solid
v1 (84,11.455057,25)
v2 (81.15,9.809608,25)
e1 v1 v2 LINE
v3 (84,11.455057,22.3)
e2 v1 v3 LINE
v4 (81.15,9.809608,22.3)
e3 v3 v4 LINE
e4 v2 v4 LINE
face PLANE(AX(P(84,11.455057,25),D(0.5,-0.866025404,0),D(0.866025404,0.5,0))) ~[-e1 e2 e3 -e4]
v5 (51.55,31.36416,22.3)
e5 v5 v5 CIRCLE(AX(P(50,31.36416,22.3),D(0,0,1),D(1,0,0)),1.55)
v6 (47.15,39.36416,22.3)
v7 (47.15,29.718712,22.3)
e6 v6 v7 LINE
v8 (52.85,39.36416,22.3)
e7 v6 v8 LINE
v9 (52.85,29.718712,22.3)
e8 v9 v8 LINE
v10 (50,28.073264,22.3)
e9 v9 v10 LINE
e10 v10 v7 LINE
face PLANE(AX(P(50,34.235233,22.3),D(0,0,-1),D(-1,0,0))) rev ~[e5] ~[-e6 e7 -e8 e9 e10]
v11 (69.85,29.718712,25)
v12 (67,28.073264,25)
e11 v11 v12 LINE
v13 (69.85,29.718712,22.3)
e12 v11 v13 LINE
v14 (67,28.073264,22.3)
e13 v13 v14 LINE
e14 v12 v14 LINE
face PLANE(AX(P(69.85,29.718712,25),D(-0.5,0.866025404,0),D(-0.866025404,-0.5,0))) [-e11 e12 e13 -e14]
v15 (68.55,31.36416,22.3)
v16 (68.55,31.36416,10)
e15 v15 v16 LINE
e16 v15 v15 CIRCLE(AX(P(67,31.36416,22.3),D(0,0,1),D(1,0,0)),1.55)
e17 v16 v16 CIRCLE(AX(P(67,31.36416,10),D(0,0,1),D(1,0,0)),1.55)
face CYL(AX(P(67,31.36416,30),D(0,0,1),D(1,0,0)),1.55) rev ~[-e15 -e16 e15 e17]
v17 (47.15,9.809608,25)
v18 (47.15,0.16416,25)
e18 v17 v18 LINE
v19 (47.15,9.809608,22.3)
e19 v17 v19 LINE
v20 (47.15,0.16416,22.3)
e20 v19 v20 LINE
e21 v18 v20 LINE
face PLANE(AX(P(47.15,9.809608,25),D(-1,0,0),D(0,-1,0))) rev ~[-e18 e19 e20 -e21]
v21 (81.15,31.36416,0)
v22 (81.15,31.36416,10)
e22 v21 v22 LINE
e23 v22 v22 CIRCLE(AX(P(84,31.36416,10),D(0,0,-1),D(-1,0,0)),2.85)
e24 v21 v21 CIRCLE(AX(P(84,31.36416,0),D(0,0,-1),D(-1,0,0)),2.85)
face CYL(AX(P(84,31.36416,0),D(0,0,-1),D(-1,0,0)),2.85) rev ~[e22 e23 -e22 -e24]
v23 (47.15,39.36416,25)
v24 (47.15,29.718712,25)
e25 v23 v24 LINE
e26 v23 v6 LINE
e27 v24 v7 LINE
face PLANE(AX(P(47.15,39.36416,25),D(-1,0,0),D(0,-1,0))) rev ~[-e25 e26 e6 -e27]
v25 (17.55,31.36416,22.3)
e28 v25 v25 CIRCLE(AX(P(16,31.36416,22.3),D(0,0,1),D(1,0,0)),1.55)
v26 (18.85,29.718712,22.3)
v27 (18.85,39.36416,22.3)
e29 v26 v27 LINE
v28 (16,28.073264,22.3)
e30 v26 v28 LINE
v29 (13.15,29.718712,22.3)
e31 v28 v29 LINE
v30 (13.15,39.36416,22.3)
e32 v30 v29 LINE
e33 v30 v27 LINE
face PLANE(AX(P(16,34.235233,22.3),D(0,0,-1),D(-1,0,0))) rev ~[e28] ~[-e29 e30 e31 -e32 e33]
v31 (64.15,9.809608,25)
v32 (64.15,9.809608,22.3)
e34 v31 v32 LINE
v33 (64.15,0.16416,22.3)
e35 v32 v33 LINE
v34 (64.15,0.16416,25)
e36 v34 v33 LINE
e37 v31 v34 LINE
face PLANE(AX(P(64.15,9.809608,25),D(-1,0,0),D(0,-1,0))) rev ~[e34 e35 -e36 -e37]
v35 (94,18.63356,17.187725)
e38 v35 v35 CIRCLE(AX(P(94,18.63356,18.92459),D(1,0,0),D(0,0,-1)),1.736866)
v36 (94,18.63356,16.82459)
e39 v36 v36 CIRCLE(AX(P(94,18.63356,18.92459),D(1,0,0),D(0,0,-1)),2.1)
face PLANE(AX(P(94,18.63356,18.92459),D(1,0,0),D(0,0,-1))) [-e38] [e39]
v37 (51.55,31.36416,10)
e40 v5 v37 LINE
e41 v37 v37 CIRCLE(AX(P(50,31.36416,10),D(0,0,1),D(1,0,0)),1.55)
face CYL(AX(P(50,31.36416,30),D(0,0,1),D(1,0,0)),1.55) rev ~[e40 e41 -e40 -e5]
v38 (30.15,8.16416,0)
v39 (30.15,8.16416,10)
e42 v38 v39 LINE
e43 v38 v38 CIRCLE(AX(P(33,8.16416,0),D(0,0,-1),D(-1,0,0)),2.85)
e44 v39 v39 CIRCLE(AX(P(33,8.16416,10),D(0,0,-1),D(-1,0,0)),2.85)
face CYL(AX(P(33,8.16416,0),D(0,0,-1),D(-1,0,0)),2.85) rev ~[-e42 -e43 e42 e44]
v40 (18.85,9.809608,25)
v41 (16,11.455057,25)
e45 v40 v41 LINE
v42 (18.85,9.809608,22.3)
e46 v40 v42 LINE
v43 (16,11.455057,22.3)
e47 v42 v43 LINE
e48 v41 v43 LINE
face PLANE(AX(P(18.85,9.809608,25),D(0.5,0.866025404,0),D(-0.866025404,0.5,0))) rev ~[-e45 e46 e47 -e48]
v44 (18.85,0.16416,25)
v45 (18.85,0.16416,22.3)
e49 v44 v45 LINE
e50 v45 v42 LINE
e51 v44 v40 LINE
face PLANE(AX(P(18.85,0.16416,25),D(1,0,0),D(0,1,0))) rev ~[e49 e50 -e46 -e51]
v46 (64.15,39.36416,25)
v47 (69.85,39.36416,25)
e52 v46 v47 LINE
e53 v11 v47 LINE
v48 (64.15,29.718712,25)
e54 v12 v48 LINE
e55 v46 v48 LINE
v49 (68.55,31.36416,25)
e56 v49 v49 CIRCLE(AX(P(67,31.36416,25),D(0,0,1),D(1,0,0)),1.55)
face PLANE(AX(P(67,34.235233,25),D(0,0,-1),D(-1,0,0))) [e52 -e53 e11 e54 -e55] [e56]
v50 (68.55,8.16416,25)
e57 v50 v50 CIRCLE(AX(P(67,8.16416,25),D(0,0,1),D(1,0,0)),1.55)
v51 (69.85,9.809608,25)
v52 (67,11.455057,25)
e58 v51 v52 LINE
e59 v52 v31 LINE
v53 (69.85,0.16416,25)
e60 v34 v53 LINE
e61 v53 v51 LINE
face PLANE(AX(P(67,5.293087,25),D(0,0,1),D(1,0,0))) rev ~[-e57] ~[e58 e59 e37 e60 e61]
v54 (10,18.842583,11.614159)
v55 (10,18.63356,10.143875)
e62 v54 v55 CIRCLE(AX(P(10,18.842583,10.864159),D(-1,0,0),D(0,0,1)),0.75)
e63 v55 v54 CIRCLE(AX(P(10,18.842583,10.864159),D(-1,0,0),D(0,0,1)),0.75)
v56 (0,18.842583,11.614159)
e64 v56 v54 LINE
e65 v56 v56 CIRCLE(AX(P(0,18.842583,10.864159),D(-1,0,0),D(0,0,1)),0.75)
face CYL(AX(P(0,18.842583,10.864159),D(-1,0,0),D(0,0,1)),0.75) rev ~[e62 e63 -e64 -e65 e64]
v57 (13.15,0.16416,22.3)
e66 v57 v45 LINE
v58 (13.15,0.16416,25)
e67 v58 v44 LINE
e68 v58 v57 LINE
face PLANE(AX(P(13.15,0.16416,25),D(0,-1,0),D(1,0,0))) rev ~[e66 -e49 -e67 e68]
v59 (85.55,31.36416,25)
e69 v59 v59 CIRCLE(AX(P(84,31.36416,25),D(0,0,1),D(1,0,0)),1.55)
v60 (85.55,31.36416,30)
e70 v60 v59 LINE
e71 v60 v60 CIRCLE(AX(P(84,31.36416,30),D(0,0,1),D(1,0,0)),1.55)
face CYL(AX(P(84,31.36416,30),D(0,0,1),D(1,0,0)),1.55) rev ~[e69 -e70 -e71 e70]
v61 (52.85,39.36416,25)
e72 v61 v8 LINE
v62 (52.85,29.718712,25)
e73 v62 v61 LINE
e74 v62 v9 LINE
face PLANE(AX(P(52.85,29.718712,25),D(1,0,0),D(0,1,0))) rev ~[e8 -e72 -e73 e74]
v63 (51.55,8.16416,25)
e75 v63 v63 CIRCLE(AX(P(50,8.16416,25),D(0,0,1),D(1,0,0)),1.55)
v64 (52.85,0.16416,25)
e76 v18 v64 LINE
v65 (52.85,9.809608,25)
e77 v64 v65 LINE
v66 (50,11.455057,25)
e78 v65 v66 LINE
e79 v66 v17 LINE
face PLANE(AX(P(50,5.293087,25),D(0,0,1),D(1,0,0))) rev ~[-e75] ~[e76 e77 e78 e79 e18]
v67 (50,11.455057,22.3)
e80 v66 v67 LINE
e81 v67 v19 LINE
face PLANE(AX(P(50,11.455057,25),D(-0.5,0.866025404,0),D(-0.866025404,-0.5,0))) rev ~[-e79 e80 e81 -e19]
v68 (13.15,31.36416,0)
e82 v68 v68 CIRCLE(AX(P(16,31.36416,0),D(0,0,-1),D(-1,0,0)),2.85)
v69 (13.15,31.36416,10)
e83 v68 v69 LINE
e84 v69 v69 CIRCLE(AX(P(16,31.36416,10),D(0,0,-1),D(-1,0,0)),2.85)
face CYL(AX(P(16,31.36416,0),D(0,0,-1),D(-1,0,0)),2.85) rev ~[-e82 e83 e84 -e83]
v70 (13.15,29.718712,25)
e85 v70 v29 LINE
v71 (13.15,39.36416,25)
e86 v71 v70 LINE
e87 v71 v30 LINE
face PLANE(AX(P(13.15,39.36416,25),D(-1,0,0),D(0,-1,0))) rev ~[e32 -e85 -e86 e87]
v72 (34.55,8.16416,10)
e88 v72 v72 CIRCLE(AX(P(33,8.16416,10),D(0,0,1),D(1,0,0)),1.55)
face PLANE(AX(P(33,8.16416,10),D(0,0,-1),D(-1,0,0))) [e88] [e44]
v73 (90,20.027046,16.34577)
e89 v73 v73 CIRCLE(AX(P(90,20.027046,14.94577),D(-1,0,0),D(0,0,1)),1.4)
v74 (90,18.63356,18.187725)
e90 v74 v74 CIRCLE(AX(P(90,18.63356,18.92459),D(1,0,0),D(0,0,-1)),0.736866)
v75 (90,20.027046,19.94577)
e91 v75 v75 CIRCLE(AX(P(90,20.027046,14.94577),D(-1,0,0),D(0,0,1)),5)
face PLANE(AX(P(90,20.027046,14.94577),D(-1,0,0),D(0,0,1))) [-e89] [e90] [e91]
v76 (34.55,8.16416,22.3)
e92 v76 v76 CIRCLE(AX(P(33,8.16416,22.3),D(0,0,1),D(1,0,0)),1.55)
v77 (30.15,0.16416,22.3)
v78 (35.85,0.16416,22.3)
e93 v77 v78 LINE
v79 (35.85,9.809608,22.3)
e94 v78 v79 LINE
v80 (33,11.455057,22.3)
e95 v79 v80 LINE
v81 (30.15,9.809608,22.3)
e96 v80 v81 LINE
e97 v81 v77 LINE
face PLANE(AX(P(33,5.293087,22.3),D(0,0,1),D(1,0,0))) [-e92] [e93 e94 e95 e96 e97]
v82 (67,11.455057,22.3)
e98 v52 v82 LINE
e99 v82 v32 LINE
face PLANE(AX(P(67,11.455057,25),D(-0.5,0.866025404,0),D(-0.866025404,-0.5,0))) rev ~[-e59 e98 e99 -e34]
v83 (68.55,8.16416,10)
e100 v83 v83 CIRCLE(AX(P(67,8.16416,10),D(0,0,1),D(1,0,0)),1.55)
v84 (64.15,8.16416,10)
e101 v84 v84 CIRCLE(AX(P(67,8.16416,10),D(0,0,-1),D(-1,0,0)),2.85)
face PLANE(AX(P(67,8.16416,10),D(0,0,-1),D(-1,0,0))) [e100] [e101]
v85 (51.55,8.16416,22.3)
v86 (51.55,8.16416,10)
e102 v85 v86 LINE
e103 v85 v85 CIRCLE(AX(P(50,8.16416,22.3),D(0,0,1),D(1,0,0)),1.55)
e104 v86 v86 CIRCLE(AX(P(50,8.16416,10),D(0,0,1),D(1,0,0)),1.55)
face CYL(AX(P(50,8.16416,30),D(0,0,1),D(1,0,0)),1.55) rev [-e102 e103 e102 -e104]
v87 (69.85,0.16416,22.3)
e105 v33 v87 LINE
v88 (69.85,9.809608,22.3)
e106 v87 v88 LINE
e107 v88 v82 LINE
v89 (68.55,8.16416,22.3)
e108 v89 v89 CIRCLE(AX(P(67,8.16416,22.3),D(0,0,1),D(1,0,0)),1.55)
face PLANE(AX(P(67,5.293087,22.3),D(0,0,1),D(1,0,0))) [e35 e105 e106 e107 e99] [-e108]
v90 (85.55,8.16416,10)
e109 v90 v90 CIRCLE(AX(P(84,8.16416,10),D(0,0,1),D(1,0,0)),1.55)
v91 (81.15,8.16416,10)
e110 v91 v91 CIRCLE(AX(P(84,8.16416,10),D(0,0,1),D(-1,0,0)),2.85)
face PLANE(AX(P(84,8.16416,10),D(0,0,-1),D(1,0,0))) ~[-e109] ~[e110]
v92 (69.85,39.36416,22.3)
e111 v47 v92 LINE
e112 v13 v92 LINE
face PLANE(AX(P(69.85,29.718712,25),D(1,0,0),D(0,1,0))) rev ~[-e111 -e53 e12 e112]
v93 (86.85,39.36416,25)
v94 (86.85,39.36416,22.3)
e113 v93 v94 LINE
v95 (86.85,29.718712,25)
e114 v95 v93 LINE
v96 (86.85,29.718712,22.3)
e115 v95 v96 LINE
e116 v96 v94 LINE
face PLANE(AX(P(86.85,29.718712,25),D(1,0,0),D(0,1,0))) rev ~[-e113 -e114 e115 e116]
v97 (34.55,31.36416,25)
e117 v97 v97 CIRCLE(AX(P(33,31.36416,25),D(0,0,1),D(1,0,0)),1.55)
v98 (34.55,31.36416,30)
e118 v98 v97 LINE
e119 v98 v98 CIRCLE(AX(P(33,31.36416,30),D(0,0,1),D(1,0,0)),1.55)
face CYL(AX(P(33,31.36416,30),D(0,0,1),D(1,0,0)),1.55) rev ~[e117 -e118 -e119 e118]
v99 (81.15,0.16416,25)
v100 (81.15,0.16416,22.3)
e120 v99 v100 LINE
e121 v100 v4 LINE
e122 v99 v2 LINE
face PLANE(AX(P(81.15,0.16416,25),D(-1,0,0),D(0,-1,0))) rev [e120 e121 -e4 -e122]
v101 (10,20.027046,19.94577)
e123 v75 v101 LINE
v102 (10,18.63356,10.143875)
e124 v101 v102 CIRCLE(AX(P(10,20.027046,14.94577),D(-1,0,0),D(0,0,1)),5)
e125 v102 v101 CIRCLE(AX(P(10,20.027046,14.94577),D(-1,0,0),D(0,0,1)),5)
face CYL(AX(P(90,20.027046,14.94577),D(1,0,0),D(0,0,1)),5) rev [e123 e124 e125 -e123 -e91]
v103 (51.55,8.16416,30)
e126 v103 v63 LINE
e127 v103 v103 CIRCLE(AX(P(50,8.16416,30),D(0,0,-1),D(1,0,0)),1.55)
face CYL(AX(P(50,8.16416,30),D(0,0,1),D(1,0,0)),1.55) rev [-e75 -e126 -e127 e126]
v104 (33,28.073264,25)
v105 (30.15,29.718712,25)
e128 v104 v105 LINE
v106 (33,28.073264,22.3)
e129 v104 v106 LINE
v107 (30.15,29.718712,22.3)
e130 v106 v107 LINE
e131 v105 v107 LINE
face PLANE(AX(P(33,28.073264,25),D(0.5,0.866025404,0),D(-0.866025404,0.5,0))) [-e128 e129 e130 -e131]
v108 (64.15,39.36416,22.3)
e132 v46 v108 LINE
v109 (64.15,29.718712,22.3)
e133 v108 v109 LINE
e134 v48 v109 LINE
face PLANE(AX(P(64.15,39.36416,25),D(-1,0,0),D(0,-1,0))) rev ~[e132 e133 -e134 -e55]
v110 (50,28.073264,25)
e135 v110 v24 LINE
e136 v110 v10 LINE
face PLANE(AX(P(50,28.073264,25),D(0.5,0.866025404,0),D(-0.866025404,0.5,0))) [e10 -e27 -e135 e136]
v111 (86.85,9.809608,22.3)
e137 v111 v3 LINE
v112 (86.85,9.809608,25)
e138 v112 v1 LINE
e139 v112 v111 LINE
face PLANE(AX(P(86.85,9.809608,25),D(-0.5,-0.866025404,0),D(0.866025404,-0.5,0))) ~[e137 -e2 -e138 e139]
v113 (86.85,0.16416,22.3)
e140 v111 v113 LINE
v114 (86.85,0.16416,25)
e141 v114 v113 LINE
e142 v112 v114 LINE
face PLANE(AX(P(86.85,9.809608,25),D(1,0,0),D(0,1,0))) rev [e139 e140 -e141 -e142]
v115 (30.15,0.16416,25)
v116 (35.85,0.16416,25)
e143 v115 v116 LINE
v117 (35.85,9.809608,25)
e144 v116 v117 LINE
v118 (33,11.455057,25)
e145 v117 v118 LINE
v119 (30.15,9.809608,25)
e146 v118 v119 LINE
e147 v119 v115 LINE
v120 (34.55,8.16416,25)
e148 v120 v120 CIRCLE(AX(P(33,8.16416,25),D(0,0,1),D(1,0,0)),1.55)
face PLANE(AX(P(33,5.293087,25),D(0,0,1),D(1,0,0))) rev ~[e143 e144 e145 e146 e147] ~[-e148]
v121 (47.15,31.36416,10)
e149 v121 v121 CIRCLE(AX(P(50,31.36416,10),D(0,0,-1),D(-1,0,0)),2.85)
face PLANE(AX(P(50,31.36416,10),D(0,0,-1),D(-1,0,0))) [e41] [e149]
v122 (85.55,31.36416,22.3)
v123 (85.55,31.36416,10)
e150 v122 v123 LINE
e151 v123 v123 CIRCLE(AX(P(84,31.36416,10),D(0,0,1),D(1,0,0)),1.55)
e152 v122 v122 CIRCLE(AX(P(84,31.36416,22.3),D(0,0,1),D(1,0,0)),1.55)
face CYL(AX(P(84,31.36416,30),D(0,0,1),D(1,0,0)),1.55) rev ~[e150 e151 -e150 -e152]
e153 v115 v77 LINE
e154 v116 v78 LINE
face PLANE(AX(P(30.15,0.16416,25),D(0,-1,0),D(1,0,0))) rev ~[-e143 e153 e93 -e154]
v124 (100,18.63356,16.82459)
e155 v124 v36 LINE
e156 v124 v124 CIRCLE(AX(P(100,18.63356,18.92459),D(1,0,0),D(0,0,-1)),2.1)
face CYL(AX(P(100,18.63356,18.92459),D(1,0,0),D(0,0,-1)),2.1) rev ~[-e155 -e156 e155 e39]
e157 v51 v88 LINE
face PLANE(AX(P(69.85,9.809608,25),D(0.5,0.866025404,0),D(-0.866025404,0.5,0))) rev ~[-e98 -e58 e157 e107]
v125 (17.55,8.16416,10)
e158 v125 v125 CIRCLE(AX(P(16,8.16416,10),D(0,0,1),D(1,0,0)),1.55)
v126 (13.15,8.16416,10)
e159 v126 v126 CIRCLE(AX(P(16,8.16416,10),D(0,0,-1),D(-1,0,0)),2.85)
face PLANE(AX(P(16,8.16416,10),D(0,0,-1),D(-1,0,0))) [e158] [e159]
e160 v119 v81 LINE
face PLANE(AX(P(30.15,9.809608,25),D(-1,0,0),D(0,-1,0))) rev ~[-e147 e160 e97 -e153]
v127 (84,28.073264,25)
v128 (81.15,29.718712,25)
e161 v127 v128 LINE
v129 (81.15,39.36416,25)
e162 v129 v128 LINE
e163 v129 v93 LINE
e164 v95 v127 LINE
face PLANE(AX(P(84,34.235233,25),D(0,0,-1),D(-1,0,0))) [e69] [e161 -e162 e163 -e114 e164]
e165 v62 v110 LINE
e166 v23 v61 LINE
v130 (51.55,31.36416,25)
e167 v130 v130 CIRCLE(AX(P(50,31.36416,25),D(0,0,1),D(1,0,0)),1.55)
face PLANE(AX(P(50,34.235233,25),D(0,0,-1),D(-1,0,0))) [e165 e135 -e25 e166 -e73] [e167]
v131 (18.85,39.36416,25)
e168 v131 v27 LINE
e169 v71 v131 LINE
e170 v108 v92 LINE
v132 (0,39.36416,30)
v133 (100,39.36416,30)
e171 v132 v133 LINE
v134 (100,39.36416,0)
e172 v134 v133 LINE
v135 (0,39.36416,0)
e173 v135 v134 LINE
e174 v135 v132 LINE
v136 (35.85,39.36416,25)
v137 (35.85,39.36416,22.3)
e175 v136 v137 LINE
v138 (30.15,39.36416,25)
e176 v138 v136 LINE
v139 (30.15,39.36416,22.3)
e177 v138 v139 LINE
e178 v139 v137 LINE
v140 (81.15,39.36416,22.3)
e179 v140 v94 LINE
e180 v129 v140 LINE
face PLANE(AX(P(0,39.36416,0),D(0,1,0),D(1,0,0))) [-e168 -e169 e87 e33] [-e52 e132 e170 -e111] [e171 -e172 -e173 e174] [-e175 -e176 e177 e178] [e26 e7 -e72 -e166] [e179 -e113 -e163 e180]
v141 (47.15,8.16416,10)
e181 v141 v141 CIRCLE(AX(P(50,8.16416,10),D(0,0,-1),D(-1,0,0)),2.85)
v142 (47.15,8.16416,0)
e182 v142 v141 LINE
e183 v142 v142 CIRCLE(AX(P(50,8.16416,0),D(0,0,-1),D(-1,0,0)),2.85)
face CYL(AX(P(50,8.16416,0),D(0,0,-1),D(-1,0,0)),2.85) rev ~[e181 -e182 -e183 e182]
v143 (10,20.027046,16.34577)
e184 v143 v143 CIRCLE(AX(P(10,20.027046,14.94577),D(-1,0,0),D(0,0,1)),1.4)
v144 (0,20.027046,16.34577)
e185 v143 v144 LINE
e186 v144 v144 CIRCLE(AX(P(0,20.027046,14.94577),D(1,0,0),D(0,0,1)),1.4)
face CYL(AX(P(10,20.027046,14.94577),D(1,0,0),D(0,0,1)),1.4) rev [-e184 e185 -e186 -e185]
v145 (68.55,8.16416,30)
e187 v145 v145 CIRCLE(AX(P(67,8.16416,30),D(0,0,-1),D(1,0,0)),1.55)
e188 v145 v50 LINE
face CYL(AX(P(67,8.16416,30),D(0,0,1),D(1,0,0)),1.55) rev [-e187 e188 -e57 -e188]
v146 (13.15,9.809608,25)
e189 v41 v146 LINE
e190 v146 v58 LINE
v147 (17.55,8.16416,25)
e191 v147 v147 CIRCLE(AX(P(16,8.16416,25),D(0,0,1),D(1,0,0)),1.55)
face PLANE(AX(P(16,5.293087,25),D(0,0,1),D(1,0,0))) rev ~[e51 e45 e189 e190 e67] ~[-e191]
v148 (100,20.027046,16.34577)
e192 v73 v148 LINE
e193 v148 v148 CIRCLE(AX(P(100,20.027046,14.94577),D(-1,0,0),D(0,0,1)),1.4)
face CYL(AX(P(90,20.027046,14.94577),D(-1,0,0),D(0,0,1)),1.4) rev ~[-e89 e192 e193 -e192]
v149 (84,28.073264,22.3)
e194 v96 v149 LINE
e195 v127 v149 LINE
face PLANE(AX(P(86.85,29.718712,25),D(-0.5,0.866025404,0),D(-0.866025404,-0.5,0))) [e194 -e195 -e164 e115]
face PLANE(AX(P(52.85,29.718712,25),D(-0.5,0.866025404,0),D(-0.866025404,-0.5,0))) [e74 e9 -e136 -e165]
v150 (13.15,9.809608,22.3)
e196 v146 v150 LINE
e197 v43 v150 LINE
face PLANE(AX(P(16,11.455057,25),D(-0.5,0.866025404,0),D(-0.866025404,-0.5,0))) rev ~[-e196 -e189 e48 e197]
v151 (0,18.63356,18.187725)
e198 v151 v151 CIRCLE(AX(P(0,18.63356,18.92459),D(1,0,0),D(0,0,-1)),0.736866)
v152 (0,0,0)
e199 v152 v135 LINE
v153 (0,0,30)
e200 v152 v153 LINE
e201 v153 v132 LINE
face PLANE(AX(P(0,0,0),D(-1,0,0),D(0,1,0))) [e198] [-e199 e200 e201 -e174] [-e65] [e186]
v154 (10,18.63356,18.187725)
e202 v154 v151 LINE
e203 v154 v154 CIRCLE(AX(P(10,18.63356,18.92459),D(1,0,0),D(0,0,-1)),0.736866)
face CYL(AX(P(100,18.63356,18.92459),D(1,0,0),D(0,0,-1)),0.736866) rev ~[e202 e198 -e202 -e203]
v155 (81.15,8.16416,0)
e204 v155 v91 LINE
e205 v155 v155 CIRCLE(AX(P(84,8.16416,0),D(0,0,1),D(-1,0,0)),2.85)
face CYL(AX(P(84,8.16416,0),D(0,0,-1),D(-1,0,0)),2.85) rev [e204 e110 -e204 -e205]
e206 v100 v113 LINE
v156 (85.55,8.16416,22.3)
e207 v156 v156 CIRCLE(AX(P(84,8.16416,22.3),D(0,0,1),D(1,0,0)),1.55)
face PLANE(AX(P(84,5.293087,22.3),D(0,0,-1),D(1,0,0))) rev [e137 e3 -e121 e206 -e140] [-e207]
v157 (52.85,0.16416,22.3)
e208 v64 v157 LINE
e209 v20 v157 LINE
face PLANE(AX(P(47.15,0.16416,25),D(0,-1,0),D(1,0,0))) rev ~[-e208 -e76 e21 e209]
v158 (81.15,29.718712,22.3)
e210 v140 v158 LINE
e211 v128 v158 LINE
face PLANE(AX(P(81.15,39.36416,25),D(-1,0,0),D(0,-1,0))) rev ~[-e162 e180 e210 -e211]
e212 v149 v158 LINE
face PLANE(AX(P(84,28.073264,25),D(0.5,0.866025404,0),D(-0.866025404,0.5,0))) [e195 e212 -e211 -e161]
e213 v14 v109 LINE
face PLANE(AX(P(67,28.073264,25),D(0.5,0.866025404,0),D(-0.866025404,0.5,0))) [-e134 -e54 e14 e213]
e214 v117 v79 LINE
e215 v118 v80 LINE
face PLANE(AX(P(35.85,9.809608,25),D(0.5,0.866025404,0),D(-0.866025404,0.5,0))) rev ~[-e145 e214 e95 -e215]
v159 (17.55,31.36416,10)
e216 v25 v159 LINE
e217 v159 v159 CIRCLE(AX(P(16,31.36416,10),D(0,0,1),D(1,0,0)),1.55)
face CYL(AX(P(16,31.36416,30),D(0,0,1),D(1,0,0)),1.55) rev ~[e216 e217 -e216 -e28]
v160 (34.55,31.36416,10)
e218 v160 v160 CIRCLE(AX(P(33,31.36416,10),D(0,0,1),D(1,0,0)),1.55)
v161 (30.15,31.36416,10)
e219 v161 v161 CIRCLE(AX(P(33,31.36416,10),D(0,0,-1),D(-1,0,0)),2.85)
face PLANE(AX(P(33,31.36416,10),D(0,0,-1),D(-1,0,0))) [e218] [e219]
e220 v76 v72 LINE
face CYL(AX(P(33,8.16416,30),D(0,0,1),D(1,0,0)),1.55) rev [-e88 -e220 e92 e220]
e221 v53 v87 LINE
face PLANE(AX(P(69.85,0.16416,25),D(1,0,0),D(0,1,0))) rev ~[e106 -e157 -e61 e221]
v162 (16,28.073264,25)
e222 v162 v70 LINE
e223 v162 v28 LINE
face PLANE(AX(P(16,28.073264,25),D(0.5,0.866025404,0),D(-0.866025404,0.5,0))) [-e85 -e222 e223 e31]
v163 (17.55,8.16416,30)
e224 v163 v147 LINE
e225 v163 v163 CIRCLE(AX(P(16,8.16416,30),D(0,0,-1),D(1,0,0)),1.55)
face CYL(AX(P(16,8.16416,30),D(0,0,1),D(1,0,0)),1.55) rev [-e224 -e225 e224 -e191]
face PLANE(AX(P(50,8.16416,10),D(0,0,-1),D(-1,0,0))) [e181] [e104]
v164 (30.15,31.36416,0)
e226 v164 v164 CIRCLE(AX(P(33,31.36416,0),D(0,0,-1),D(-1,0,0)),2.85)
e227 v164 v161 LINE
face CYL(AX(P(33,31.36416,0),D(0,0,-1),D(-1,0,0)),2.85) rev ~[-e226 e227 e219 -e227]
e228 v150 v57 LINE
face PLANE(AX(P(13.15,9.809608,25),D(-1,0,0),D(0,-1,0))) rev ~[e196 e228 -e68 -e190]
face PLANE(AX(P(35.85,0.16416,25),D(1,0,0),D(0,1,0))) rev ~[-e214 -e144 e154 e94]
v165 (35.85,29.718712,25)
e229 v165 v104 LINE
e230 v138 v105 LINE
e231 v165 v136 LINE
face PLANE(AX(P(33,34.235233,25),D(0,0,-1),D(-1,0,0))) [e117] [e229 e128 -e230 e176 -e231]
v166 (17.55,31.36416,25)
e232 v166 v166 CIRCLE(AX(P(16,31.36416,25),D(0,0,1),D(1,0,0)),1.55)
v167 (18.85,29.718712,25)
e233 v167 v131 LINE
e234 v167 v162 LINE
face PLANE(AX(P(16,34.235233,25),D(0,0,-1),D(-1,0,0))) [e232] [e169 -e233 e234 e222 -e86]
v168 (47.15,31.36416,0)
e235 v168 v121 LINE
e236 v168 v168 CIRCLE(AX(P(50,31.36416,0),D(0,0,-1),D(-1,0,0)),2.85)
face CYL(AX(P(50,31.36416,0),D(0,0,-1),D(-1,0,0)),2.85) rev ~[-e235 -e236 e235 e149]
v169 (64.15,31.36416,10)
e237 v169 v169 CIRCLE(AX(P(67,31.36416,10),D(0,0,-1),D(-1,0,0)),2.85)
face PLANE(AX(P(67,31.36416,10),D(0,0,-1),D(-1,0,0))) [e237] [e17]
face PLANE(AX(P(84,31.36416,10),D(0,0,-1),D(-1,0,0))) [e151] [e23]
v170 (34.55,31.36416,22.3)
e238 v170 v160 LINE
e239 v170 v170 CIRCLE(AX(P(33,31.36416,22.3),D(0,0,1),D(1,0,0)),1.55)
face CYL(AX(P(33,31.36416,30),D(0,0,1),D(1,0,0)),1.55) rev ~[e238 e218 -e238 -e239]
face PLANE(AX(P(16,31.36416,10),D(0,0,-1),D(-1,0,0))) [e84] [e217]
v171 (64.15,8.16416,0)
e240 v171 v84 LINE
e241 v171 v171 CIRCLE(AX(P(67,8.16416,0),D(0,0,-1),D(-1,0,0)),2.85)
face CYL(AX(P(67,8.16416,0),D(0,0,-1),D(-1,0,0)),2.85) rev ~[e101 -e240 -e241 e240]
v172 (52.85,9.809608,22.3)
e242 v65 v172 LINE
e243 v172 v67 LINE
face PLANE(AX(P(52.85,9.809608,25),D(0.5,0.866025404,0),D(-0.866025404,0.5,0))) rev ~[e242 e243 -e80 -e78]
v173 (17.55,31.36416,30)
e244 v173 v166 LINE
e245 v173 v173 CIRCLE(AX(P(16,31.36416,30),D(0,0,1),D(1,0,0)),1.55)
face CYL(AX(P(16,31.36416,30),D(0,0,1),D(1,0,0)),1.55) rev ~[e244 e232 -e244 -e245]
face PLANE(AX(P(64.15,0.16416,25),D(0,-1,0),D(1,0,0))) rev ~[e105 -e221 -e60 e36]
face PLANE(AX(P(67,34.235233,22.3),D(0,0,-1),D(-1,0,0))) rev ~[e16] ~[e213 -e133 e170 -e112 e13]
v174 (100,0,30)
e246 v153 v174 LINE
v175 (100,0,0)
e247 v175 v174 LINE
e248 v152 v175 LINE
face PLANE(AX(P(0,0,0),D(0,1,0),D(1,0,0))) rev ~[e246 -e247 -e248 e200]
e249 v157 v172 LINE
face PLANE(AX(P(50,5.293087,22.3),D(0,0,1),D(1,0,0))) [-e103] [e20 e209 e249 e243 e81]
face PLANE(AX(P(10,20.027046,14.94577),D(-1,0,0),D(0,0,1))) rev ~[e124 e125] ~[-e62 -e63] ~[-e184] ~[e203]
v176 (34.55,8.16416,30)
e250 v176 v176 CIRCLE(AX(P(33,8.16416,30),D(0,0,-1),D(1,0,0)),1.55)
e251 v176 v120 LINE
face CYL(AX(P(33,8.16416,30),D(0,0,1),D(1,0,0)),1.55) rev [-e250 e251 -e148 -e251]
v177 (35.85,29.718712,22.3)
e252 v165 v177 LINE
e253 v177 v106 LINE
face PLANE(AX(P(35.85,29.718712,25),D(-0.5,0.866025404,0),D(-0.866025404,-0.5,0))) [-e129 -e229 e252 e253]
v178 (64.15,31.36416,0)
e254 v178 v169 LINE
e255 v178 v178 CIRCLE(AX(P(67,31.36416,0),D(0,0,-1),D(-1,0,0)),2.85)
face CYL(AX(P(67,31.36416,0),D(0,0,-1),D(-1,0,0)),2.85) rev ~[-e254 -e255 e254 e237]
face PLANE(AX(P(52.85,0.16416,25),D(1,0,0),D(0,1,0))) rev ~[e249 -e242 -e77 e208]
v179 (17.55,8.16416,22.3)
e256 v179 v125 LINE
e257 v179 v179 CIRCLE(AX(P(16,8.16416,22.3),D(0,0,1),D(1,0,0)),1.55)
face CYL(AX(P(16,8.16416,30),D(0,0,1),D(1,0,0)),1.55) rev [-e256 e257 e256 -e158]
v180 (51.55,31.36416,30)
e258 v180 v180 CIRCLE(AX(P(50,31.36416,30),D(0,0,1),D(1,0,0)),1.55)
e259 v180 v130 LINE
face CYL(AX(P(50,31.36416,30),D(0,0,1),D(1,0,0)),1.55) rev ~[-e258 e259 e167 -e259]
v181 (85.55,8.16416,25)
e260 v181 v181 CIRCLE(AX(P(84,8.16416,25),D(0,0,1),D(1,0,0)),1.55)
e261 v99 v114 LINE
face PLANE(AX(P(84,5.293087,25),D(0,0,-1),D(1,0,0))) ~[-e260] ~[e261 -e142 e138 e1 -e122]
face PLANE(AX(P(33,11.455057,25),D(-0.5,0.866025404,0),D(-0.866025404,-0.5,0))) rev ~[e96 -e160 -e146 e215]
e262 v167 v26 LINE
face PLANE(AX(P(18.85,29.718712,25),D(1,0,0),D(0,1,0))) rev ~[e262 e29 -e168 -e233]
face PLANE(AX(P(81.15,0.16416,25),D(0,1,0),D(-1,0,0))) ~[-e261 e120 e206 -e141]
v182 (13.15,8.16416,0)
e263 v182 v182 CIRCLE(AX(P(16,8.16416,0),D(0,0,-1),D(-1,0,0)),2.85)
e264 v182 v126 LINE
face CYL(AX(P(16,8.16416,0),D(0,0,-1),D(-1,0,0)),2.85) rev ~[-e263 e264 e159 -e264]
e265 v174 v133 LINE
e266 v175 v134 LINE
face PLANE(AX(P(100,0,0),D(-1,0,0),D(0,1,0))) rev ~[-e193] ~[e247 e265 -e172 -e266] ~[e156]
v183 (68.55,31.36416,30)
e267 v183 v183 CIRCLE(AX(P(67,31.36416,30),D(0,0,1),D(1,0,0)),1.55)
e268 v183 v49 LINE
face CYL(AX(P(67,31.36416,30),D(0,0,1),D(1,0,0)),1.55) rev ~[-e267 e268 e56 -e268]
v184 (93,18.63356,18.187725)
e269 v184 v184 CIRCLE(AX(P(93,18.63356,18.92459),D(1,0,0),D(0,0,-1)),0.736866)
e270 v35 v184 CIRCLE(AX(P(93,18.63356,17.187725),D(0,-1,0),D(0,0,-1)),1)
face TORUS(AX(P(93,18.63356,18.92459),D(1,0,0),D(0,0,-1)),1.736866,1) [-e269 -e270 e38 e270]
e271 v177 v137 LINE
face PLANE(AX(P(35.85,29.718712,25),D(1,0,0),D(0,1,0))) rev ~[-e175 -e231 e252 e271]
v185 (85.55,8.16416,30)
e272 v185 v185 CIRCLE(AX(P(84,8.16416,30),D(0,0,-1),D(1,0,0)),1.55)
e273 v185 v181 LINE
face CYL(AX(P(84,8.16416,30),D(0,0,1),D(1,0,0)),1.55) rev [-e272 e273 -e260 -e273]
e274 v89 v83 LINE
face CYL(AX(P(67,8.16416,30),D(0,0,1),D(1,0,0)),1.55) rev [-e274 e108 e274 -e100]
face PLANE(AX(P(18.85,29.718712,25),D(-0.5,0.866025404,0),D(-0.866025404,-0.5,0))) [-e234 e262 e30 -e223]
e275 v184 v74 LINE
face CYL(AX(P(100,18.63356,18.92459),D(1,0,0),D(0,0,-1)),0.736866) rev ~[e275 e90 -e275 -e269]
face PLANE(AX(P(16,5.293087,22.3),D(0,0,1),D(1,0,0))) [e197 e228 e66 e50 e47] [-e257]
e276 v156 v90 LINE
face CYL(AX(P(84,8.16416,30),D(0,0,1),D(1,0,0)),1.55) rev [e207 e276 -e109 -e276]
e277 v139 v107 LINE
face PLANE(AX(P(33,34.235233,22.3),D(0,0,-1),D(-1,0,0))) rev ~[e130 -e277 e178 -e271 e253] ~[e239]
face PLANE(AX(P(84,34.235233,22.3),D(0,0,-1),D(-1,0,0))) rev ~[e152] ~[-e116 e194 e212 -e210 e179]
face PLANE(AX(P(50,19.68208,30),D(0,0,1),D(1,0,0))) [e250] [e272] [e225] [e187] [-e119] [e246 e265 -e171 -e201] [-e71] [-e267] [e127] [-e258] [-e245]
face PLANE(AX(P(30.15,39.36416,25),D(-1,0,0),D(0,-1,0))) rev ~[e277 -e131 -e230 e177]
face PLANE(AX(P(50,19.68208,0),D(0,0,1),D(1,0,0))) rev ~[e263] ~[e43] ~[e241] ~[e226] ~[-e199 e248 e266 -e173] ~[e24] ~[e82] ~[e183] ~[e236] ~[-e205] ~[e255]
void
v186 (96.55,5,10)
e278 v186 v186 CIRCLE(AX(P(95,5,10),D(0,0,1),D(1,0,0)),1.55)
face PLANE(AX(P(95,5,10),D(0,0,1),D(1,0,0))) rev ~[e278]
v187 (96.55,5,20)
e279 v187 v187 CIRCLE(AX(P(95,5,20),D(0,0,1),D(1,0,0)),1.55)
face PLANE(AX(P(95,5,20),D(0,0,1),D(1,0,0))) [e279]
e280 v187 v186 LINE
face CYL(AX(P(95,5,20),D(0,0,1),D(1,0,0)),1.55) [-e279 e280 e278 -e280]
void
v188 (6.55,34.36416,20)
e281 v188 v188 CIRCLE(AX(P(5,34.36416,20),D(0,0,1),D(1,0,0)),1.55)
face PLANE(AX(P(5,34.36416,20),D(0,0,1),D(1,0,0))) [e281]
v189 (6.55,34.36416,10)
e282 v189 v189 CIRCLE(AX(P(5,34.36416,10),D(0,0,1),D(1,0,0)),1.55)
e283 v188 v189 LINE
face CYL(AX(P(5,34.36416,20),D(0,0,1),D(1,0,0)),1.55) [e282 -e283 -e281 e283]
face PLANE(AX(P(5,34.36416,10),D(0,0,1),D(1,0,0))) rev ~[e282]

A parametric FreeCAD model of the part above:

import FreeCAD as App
import Part
import Sketcher

V = App.Vector
Q = App.Units.Quantity


def edges_at(feature, points):
    """Names of the edges that pass closest to the given points."""
    edges = feature.Shape.Edges
    near = lambda p: min(range(len(edges)), key=lambda i: edges[i].distToShape(Part.Vertex(*p))[0])
    return sorted({f"Edge{near(p) + 1}" for p in points})

doc = App.newDocument("Part")
body = doc.addObject("PartDesign::Body", "Body")

# Sketch on XY plane
sketch1 = body.newObject("Sketcher::SketchObject", "Sketch")
sketch1.AttachmentSupport = (doc.getObject("XY_Plane"), [""])
sketch1.MapMode = "FlatFace"
sketch1.addGeometry([
    Part.LineSegment(V(0, 39, 0), V(0, 0, 0)),
    Part.LineSegment(V(0, 0, 0), V(100, 0, 0)),
    Part.LineSegment(V(100, 0, 0), V(100, 39, 0)),
    Part.LineSegment(V(100, 39, 0), V(0, 39, 0)),
], False)
sketch1.addConstraint([
    Sketcher.Constraint("Coincident", 0, 2, 1, 1),
    Sketcher.Constraint("Coincident", 1, 2, 2, 1),
    Sketcher.Constraint("Coincident", 2, 2, 3, 1),
    Sketcher.Constraint("Coincident", 3, 2, 0, 1),
    Sketcher.Constraint("Vertical", 0),
    Sketcher.Constraint("Horizontal", 1),
    Sketcher.Constraint("Vertical", 2),
    Sketcher.Constraint("Horizontal", 3),
    Sketcher.Constraint("Coincident", 0, 2, -1, 1),
    Sketcher.Constraint("DistanceX", 1, 1, 1, 2, Q("100 mm")),
    Sketcher.Constraint("DistanceY", 0, 2, 0, 1, Q("39.36416 mm")),
])
pad1 = body.newObject("PartDesign::Pad", "Pad")
pad1.Profile = sketch1
pad1.Length = 30

# Sketch on YZ plane
sketch2 = body.newObject("Sketcher::SketchObject", "Sketch001")
sketch2.AttachmentSupport = (doc.getObject("YZ_Plane"), [""])
sketch2.MapMode = "FlatFace"
sketch2.AttachmentOffset = App.Placement(V(0, 0, 50), App.Rotation())
sketch2.addGeometry(Part.Circle(V(20, 15, 0), V(0, 0, 1), 5), False)
sketch2.addConstraint([
    Sketcher.Constraint("Diameter", 0, Q("10 mm")),
    Sketcher.Constraint("DistanceY", -1, 1, 0, 3, Q("14.94577 mm")),
    Sketcher.Constraint("DistanceX", -1, 1, 0, 3, Q("20.027046 mm")),
])
pocket1 = body.newObject("PartDesign::Pocket", "Pocket")
pocket1.Profile = sketch2
pocket1.Type = "TwoLengths"
pocket1.Length = 40
pocket1.Length2 = 40

# Sketch on YZ plane
sketch3 = body.newObject("Sketcher::SketchObject", "Sketch002")
sketch3.AttachmentSupport = (doc.getObject("YZ_Plane"), [""])
sketch3.MapMode = "FlatFace"
sketch3.AttachmentOffset = App.Placement(V(0, 0, 90), App.Rotation())
sketch3.addGeometry(Part.Circle(V(20, 14.9, 0), V(0, 0, 1), 1.4), False)
sketch3.addConstraint([
    Sketcher.Constraint("Diameter", 0, Q("2.8 mm")),
    Sketcher.Constraint("DistanceY", -1, 1, 0, 3, Q("14.94577 mm")),
    Sketcher.Constraint("DistanceX", -1, 1, 0, 3, Q("20.027046 mm")),
])
pocket2 = body.newObject("PartDesign::Pocket", "Pocket001")
pocket2.Profile = sketch3
pocket2.Type = "ThroughAll"
pocket2.Reversed = True
doc.recompute()

datumplane = body.newObject("PartDesign::Plane", "DatumPlane")
datumplane.AttachmentSupport = (doc.getObject("YZ_Plane"), [""])
datumplane.MapMode = "FlatFace"
datumplane.AttachmentOffset = App.Placement(V(0, 0, 50), App.Rotation())
mirrored = body.newObject("PartDesign::Mirrored", "Mirrored")
mirrored.Originals = [pocket2]
mirrored.MirrorPlane = (datumplane, [""])
body.Tip = mirrored

# Sketch on XY plane
sketch4 = body.newObject("Sketcher::SketchObject", "Sketch003")
sketch4.AttachmentSupport = (doc.getObject("XY_Plane"), [""])
sketch4.MapMode = "FlatFace"
sketch4.AttachmentOffset = App.Placement(V(0, 0, 30), App.Rotation())
sketch4.addGeometry([
    Part.Circle(V(16, 31.4, 0), V(0, 0, 1), 1.6),  # 0
    Part.Circle(V(33, 31.4, 0), V(0, 0, 1), 1.6),  # 1
    Part.Circle(V(50, 31.4, 0), V(0, 0, 1), 1.6),  # 2
    Part.Circle(V(67, 31.4, 0), V(0, 0, 1), 1.6),  # 3
    Part.Circle(V(84, 31.4, 0), V(0, 0, 1), 1.6),  # 4
], False)
sketch4.addConstraint([
    Sketcher.Constraint("Equal", 0, 1),
    Sketcher.Constraint("Equal", 1, 2),
    Sketcher.Constraint("Equal", 2, 3),
    Sketcher.Constraint("Equal", 3, 4),
    Sketcher.Constraint("Horizontal", 0, 3, 1, 3),
    Sketcher.Constraint("Horizontal", 1, 3, 2, 3),
    Sketcher.Constraint("Horizontal", 2, 3, 3, 3),
    Sketcher.Constraint("Horizontal", 3, 3, 4, 3),
    Sketcher.Constraint("Diameter", 0, Q("3.1 mm")),
    Sketcher.Constraint("DistanceX", -1, 1, 0, 3, Q("16 mm")),
    Sketcher.Constraint("DistanceX", -1, 1, 1, 3, Q("33 mm")),
    Sketcher.Constraint("DistanceX", -1, 1, 2, 3, Q("50 mm")),
    Sketcher.Constraint("DistanceX", -1, 1, 3, 3, Q("67 mm")),
    Sketcher.Constraint("DistanceX", -1, 1, 4, 3, Q("84 mm")),
    Sketcher.Constraint("DistanceY", -1, 1, 0, 3, Q("31.36416 mm")),
])
pocket3 = body.newObject("PartDesign::Pocket", "Pocket002")
pocket3.Profile = sketch4
pocket3.Type = "ThroughAll"

# Sketch on YZ plane
sketch5 = body.newObject("Sketcher::SketchObject", "Sketch004")
sketch5.AttachmentSupport = (doc.getObject("YZ_Plane"), [""])
sketch5.MapMode = "FlatFace"
sketch5.AttachmentOffset = App.Placement(V(0, 0, 100), App.Rotation())
sketch5.addGeometry(Part.Circle(V(18.6, 18.9, 0), V(0, 0, 1), 0.7), False)
sketch5.addConstraint([
    Sketcher.Constraint("Diameter", 0, Q("1.473731 mm")),
    Sketcher.Constraint("DistanceX", -1, 1, 0, 3, Q("18.63356 mm")),
    Sketcher.Constraint("DistanceY", -1, 1, 0, 3, Q("18.92459 mm")),
])
pocket4 = body.newObject("PartDesign::Pocket", "Pocket003")
pocket4.Profile = sketch5
pocket4.Type = "ThroughAll"

# Sketch on YZ plane
sketch6 = body.newObject("Sketcher::SketchObject", "Sketch005")
sketch6.AttachmentSupport = (doc.getObject("YZ_Plane"), [""])
sketch6.MapMode = "FlatFace"
sketch6.AttachmentOffset = App.Placement(V(0, 0, 100), App.Rotation())
sketch6.addGeometry(Part.Circle(V(18.6, 18.9, 0), V(0, 0, 1), 2.1), False)
sketch6.addConstraint([
    Sketcher.Constraint("Diameter", 0, Q("4.2 mm")),
    Sketcher.Constraint("DistanceX", -1, 1, 0, 3, Q("18.63356 mm")),
    Sketcher.Constraint("DistanceY", -1, 1, 0, 3, Q("18.92459 mm")),
])
pocket5 = body.newObject("PartDesign::Pocket", "Pocket004")
pocket5.Profile = sketch6
pocket5.Length = 6

# Sketch on YZ plane
sketch7 = body.newObject("Sketcher::SketchObject", "Sketch006")
sketch7.AttachmentSupport = (doc.getObject("YZ_Plane"), [""])
sketch7.MapMode = "FlatFace"
sketch7.addGeometry(Part.Circle(V(18.8, 10.9, 0), V(0, 0, 1), 0.8), False)
sketch7.addConstraint([
    Sketcher.Constraint("Diameter", 0, Q("1.5 mm")),
    Sketcher.Constraint("DistanceY", -1, 1, 0, 3, Q("10.864159 mm")),
    Sketcher.Constraint("DistanceX", -1, 1, 0, 3, Q("18.842583 mm")),
])
pocket6 = body.newObject("PartDesign::Pocket", "Pocket005")
pocket6.Profile = sketch7
pocket6.Length = 10
pocket6.Reversed = True
doc.recompute()

fillet = body.newObject("PartDesign::Fillet", "Fillet")
fillet.Base = (pocket6, edges_at(pocket6, [(94, 18.634, 19.661)]))
fillet.Radius = 1

# Sketch on XY plane
sketch8 = body.newObject("Sketcher::SketchObject", "Sketch007")
sketch8.AttachmentSupport = (doc.getObject("XY_Plane"), [""])
sketch8.MapMode = "FlatFace"
sketch8.addGeometry(Part.Circle(V(84, 31.4, 0), V(0, 0, 1), 2.9), False)
sketch8.addConstraint([
    Sketcher.Constraint("Diameter", 0, Q("5.7 mm")),
    Sketcher.Constraint("DistanceX", -1, 1, 0, 3, Q("84 mm")),
    Sketcher.Constraint("DistanceY", -1, 1, 0, 3, Q("31.36416 mm")),
])
pocket7 = body.newObject("PartDesign::Pocket", "Pocket006")
pocket7.Profile = sketch8
pocket7.Length = 10
pocket7.Reversed = True

# Sketch on XY plane
sketch9 = body.newObject("Sketcher::SketchObject", "Sketch008")
sketch9.AttachmentSupport = (doc.getObject("XY_Plane"), [""])
sketch9.MapMode = "FlatFace"
sketch9.AttachmentOffset = App.Placement(V(0, 0, 25), App.Rotation())
sketch9.addGeometry([
    Part.LineSegment(V(81.2, 39.4, 0), V(81.2, 29.7, 0)),  # 0
    Part.LineSegment(V(81.2, 29.7, 0), V(84, 28.1, 0)),  # 1
    Part.LineSegment(V(84, 28.1, 0), V(86.8, 29.7, 0)),  # 2
    Part.LineSegment(V(86.8, 29.7, 0), V(86.8, 39.4, 0)),  # 3
    Part.LineSegment(V(86.8, 39.4, 0), V(81.2, 39.4, 0)),  # 4
], False)
sketch9.addConstraint([
    Sketcher.Constraint("Coincident", 0, 2, 1, 1),
    Sketcher.Constraint("Coincident", 1, 2, 2, 1),
    Sketcher.Constraint("Coincident", 2, 2, 3, 1),
    Sketcher.Constraint("Coincident", 3, 2, 4, 1),
    Sketcher.Constraint("Coincident", 4, 2, 0, 1),
    Sketcher.Constraint("Vertical", 0),
    Sketcher.Constraint("Vertical", 3),
    Sketcher.Constraint("Horizontal", 4),
    Sketcher.Constraint("Horizontal", 0, 2, 2, 2),
    Sketcher.Constraint("Equal", 1, 2),
    Sketcher.Constraint("Angle", 1, Q("-30 deg")),
    Sketcher.Constraint("DistanceX", 4, 2, 4, 1, Q("5.7 mm")),
    Sketcher.Constraint("DistanceX", -1, 1, 1, 2, Q("84 mm")),
    Sketcher.Constraint("DistanceY", 0, 2, 0, 1, Q("9.645448 mm")),
    Sketcher.Constraint("DistanceY", -1, 1, 0, 2, Q("29.718712 mm")),
])
pocket8 = body.newObject("PartDesign::Pocket", "Pocket007")
pocket8.Profile = sketch9
pocket8.Length = 2.7
doc.recompute()

linearpattern = body.newObject("PartDesign::LinearPattern", "LinearPattern")
linearpattern.Originals = [pocket7, pocket8]
linearpattern.Direction = (doc.getObject("X_Axis"), [""])
linearpattern.Mode = "offset"
linearpattern.Offset = 17
linearpattern.Occurrences = 5
linearpattern.Reversed = True
body.Tip = linearpattern
doc.recompute()

datumplane2 = body.newObject("PartDesign::Plane", "DatumPlane001")
datumplane2.AttachmentSupport = (doc.getObject("XZ_Plane"), [""])
datumplane2.MapMode = "FlatFace"
datumplane2.AttachmentOffset = App.Placement(V(0, 0, -19.76416), App.Rotation())
mirrored2 = body.newObject("PartDesign::Mirrored", "Mirrored001")
mirrored2.Originals = [pocket7, pocket8]
mirrored2.MirrorPlane = (datumplane2, [""])
body.Tip = mirrored2

# Sketch on XY plane
sketch10 = body.newObject("Sketcher::SketchObject", "Sketch009")
sketch10.AttachmentSupport = (doc.getObject("XY_Plane"), [""])
sketch10.MapMode = "FlatFace"
sketch10.addGeometry(Part.Circle(V(67, 8.2, 0), V(0, 0, 1), 2.9), False)
sketch10.addConstraint([
    Sketcher.Constraint("Diameter", 0, Q("5.7 mm")),
    Sketcher.Constraint("DistanceX", -1, 1, 0, 3, Q("67 mm")),
    Sketcher.Constraint("DistanceY", -1, 1, 0, 3, Q("8.16416 mm")),
])
pocket9 = body.newObject("PartDesign::Pocket", "Pocket008")
pocket9.Profile = sketch10
pocket9.Length = 10
pocket9.Reversed = True

# Sketch on XY plane
sketch11 = body.newObject("Sketcher::SketchObject", "Sketch010")
sketch11.AttachmentSupport = (doc.getObject("XY_Plane"), [""])
sketch11.MapMode = "FlatFace"
sketch11.addGeometry(Part.Circle(V(50, 8.2, 0), V(0, 0, 1), 2.9), False)
sketch11.addConstraint([
    Sketcher.Constraint("Diameter", 0, Q("5.7 mm")),
    Sketcher.Constraint("DistanceX", -1, 1, 0, 3, Q("50 mm")),
    Sketcher.Constraint("DistanceY", -1, 1, 0, 3, Q("8.16416 mm")),
])
pocket10 = body.newObject("PartDesign::Pocket", "Pocket009")
pocket10.Profile = sketch11
pocket10.Length = 10
pocket10.Reversed = True

# Sketch on XY plane
sketch12 = body.newObject("Sketcher::SketchObject", "Sketch011")
sketch12.AttachmentSupport = (doc.getObject("XY_Plane"), [""])
sketch12.MapMode = "FlatFace"
sketch12.addGeometry(Part.Circle(V(33, 8.2, 0), V(0, 0, 1), 2.9), False)
sketch12.addConstraint([
    Sketcher.Constraint("Diameter", 0, Q("5.7 mm")),
    Sketcher.Constraint("DistanceX", -1, 1, 0, 3, Q("33 mm")),
    Sketcher.Constraint("DistanceY", -1, 1, 0, 3, Q("8.16416 mm")),
])
pocket11 = body.newObject("PartDesign::Pocket", "Pocket010")
pocket11.Profile = sketch12
pocket11.Length = 10
pocket11.Reversed = True

# Sketch on XY plane
sketch13 = body.newObject("Sketcher::SketchObject", "Sketch012")
sketch13.AttachmentSupport = (doc.getObject("XY_Plane"), [""])
sketch13.MapMode = "FlatFace"
sketch13.addGeometry(Part.Circle(V(16, 8.2, 0), V(0, 0, 1), 2.9), False)
sketch13.addConstraint([
    Sketcher.Constraint("Diameter", 0, Q("5.7 mm")),
    Sketcher.Constraint("DistanceX", -1, 1, 0, 3, Q("16 mm")),
    Sketcher.Constraint("DistanceY", -1, 1, 0, 3, Q("8.16416 mm")),
])
pocket12 = body.newObject("PartDesign::Pocket", "Pocket011")
pocket12.Profile = sketch13
pocket12.Length = 10
pocket12.Reversed = True

# Sketch on XY plane
sketch14 = body.newObject("Sketcher::SketchObject", "Sketch013")
sketch14.AttachmentSupport = (doc.getObject("XY_Plane"), [""])
sketch14.MapMode = "FlatFace"
sketch14.AttachmentOffset = App.Placement(V(0, 0, 25), App.Rotation())
sketch14.addGeometry([
    Part.LineSegment(V(64.2, 0.2, 0), V(69.8, 0.2, 0)),  # 0
    Part.LineSegment(V(69.8, 0.2, 0), V(69.8, 9.8, 0)),  # 1
    Part.LineSegment(V(69.8, 9.8, 0), V(67, 11.5, 0)),  # 2
    Part.LineSegment(V(67, 11.5, 0), V(64.2, 9.8, 0)),  # 3
    Part.LineSegment(V(64.2, 9.8, 0), V(64.2, 0.2, 0)),  # 4
], False)
sketch14.addConstraint([
    Sketcher.Constraint("Coincident", 0, 2, 1, 1),
    Sketcher.Constraint("Coincident", 1, 2, 2, 1),
    Sketcher.Constraint("Coincident", 2, 2, 3, 1),
    Sketcher.Constraint("Coincident", 3, 2, 4, 1),
    Sketcher.Constraint("Coincident", 4, 2, 0, 1),
    Sketcher.Constraint("Horizontal", 0),
    Sketcher.Constraint("Vertical", 1),
    Sketcher.Constraint("Vertical", 4),
    Sketcher.Constraint("Horizontal", 1, 2, 3, 2),
    Sketcher.Constraint("Equal", 2, 3),
    Sketcher.Constraint("Angle", 2, Q("150 deg")),
    Sketcher.Constraint("DistanceX", 0, 1, 0, 2, Q("5.7 mm")),
    Sketcher.Constraint("DistanceX", -1, 1, 2, 2, Q("67 mm")),
    Sketcher.Constraint("DistanceY", 1, 1, 1, 2, Q("9.645448 mm")),
    Sketcher.Constraint("DistanceY", -1, 1, 0, 2, Q("0.16416 mm")),
])
pocket13 = body.newObject("PartDesign::Pocket", "Pocket012")
pocket13.Profile = sketch14
pocket13.Length = 2.7

# Sketch on XY plane
sketch15 = body.newObject("Sketcher::SketchObject", "Sketch014")
sketch15.AttachmentSupport = (doc.getObject("XY_Plane"), [""])
sketch15.MapMode = "FlatFace"
sketch15.AttachmentOffset = App.Placement(V(0, 0, 25), App.Rotation())
sketch15.addGeometry([
    Part.LineSegment(V(47.1, 0.2, 0), V(52.9, 0.2, 0)),  # 0
    Part.LineSegment(V(52.9, 0.2, 0), V(52.9, 9.8, 0)),  # 1
    Part.LineSegment(V(52.9, 9.8, 0), V(50, 11.5, 0)),  # 2
    Part.LineSegment(V(50, 11.5, 0), V(47.1, 9.8, 0)),  # 3
    Part.LineSegment(V(47.1, 9.8, 0), V(47.1, 0.2, 0)),  # 4
], False)
sketch15.addConstraint([
    Sketcher.Constraint("Coincident", 0, 2, 1, 1),
    Sketcher.Constraint("Coincident", 1, 2, 2, 1),
    Sketcher.Constraint("Coincident", 2, 2, 3, 1),
    Sketcher.Constraint("Coincident", 3, 2, 4, 1),
    Sketcher.Constraint("Coincident", 4, 2, 0, 1),
    Sketcher.Constraint("Horizontal", 0),
    Sketcher.Constraint("Vertical", 1),
    Sketcher.Constraint("Vertical", 4),
    Sketcher.Constraint("Horizontal", 1, 2, 3, 2),
    Sketcher.Constraint("Equal", 2, 3),
    Sketcher.Constraint("Angle", 2, Q("150 deg")),
    Sketcher.Constraint("DistanceX", 0, 1, 0, 2, Q("5.7 mm")),
    Sketcher.Constraint("DistanceX", -1, 1, 2, 2, Q("50 mm")),
    Sketcher.Constraint("DistanceY", 1, 1, 1, 2, Q("9.645448 mm")),
    Sketcher.Constraint("DistanceY", -1, 1, 0, 2, Q("0.16416 mm")),
])
pocket14 = body.newObject("PartDesign::Pocket", "Pocket013")
pocket14.Profile = sketch15
pocket14.Length = 2.7

# Sketch on XY plane
sketch16 = body.newObject("Sketcher::SketchObject", "Sketch015")
sketch16.AttachmentSupport = (doc.getObject("XY_Plane"), [""])
sketch16.MapMode = "FlatFace"
sketch16.AttachmentOffset = App.Placement(V(0, 0, 25), App.Rotation())
sketch16.addGeometry([
    Part.LineSegment(V(30.1, 0.2, 0), V(35.9, 0.2, 0)),  # 0
    Part.LineSegment(V(35.9, 0.2, 0), V(35.9, 9.8, 0)),  # 1
    Part.LineSegment(V(35.9, 9.8, 0), V(33, 11.5, 0)),  # 2
    Part.LineSegment(V(33, 11.5, 0), V(30.1, 9.8, 0)),  # 3
    Part.LineSegment(V(30.1, 9.8, 0), V(30.1, 0.2, 0)),  # 4
], False)
sketch16.addConstraint([
    Sketcher.Constraint("Coincident", 0, 2, 1, 1),
    Sketcher.Constraint("Coincident", 1, 2, 2, 1),
    Sketcher.Constraint("Coincident", 2, 2, 3, 1),
    Sketcher.Constraint("Coincident", 3, 2, 4, 1),
    Sketcher.Constraint("Coincident", 4, 2, 0, 1),
    Sketcher.Constraint("Horizontal", 0),
    Sketcher.Constraint("Vertical", 1),
    Sketcher.Constraint("Vertical", 4),
    Sketcher.Constraint("Horizontal", 1, 2, 3, 2),
    Sketcher.Constraint("Equal", 2, 3),
    Sketcher.Constraint("Angle", 2, Q("150 deg")),
    Sketcher.Constraint("DistanceX", 0, 1, 0, 2, Q("5.7 mm")),
    Sketcher.Constraint("DistanceX", -1, 1, 2, 2, Q("33 mm")),
    Sketcher.Constraint("DistanceY", 1, 1, 1, 2, Q("9.645448 mm")),
    Sketcher.Constraint("DistanceY", -1, 1, 0, 2, Q("0.16416 mm")),
])
pocket15 = body.newObject("PartDesign::Pocket", "Pocket014")
pocket15.Profile = sketch16
pocket15.Length = 2.7

# Sketch on XY plane
sketch17 = body.newObject("Sketcher::SketchObject", "Sketch016")
sketch17.AttachmentSupport = (doc.getObject("XY_Plane"), [""])
sketch17.MapMode = "FlatFace"
sketch17.AttachmentOffset = App.Placement(V(0, 0, 25), App.Rotation())
sketch17.addGeometry([
    Part.LineSegment(V(13.2, 0.2, 0), V(18.9, 0.2, 0)),  # 0
    Part.LineSegment(V(18.9, 0.2, 0), V(18.9, 9.8, 0)),  # 1
    Part.LineSegment(V(18.9, 9.8, 0), V(16, 11.5, 0)),  # 2
    Part.LineSegment(V(16, 11.5, 0), V(13.2, 9.8, 0)),  # 3
    Part.LineSegment(V(13.2, 9.8, 0), V(13.2, 0.2, 0)),  # 4
], False)
sketch17.addConstraint([
    Sketcher.Constraint("Coincident", 0, 2, 1, 1),
    Sketcher.Constraint("Coincident", 1, 2, 2, 1),
    Sketcher.Constraint("Coincident", 2, 2, 3, 1),
    Sketcher.Constraint("Coincident", 3, 2, 4, 1),
    Sketcher.Constraint("Coincident", 4, 2, 0, 1),
    Sketcher.Constraint("Horizontal", 0),
    Sketcher.Constraint("Vertical", 1),
    Sketcher.Constraint("Vertical", 4),
    Sketcher.Constraint("Horizontal", 1, 2, 3, 2),
    Sketcher.Constraint("Equal", 2, 3),
    Sketcher.Constraint("Angle", 2, Q("150 deg")),
    Sketcher.Constraint("DistanceX", 0, 1, 0, 2, Q("5.7 mm")),
    Sketcher.Constraint("DistanceX", -1, 1, 2, 2, Q("16 mm")),
    Sketcher.Constraint("DistanceY", 1, 1, 1, 2, Q("9.645448 mm")),
    Sketcher.Constraint("DistanceY", -1, 1, 0, 2, Q("0.16416 mm")),
])
pocket16 = body.newObject("PartDesign::Pocket", "Pocket015")
pocket16.Profile = sketch17
pocket16.Length = 2.7
doc.recompute()

datumplane3 = body.newObject("PartDesign::Plane", "DatumPlane002")
datumplane3.AttachmentSupport = (doc.getObject("XZ_Plane"), [""])
datumplane3.MapMode = "FlatFace"
datumplane3.AttachmentOffset = App.Placement(V(0, 0, -19.76416), App.Rotation())
mirrored3 = body.newObject("PartDesign::Mirrored", "Mirrored002")
mirrored3.Originals = [pocket3]
mirrored3.MirrorPlane = (datumplane3, [""])
body.Tip = mirrored3

# Sketch on XY plane
sketch18 = body.newObject("Sketcher::SketchObject", "Sketch017")
sketch18.AttachmentSupport = (doc.getObject("XY_Plane"), [""])
sketch18.MapMode = "FlatFace"
sketch18.AttachmentOffset = App.Placement(V(0, 0, 20), App.Rotation())
sketch18.addGeometry([
    Part.Circle(V(5, 34.4, 0), V(0, 0, 1), 1.6),
    Part.Circle(V(95, 5, 0), V(0, 0, 1), 1.6),
], False)
sketch18.addConstraint([
    Sketcher.Constraint("Equal", 0, 1),
    Sketcher.Constraint("Diameter", 0, Q("3.1 mm")),
    Sketcher.Constraint("DistanceX", -1, 1, 0, 3, Q("5 mm")),
    Sketcher.Constraint("DistanceX", -1, 1, 1, 3, Q("95 mm")),
    Sketcher.Constraint("DistanceY", -1, 1, 1, 3, Q("5 mm")),
    Sketcher.Constraint("DistanceY", -1, 1, 0, 3, Q("34.36416 mm")),
])
pocket17 = body.newObject("PartDesign::Pocket", "Pocket016")
pocket17.Profile = sketch18
pocket17.Length = 10

doc.recompute()
